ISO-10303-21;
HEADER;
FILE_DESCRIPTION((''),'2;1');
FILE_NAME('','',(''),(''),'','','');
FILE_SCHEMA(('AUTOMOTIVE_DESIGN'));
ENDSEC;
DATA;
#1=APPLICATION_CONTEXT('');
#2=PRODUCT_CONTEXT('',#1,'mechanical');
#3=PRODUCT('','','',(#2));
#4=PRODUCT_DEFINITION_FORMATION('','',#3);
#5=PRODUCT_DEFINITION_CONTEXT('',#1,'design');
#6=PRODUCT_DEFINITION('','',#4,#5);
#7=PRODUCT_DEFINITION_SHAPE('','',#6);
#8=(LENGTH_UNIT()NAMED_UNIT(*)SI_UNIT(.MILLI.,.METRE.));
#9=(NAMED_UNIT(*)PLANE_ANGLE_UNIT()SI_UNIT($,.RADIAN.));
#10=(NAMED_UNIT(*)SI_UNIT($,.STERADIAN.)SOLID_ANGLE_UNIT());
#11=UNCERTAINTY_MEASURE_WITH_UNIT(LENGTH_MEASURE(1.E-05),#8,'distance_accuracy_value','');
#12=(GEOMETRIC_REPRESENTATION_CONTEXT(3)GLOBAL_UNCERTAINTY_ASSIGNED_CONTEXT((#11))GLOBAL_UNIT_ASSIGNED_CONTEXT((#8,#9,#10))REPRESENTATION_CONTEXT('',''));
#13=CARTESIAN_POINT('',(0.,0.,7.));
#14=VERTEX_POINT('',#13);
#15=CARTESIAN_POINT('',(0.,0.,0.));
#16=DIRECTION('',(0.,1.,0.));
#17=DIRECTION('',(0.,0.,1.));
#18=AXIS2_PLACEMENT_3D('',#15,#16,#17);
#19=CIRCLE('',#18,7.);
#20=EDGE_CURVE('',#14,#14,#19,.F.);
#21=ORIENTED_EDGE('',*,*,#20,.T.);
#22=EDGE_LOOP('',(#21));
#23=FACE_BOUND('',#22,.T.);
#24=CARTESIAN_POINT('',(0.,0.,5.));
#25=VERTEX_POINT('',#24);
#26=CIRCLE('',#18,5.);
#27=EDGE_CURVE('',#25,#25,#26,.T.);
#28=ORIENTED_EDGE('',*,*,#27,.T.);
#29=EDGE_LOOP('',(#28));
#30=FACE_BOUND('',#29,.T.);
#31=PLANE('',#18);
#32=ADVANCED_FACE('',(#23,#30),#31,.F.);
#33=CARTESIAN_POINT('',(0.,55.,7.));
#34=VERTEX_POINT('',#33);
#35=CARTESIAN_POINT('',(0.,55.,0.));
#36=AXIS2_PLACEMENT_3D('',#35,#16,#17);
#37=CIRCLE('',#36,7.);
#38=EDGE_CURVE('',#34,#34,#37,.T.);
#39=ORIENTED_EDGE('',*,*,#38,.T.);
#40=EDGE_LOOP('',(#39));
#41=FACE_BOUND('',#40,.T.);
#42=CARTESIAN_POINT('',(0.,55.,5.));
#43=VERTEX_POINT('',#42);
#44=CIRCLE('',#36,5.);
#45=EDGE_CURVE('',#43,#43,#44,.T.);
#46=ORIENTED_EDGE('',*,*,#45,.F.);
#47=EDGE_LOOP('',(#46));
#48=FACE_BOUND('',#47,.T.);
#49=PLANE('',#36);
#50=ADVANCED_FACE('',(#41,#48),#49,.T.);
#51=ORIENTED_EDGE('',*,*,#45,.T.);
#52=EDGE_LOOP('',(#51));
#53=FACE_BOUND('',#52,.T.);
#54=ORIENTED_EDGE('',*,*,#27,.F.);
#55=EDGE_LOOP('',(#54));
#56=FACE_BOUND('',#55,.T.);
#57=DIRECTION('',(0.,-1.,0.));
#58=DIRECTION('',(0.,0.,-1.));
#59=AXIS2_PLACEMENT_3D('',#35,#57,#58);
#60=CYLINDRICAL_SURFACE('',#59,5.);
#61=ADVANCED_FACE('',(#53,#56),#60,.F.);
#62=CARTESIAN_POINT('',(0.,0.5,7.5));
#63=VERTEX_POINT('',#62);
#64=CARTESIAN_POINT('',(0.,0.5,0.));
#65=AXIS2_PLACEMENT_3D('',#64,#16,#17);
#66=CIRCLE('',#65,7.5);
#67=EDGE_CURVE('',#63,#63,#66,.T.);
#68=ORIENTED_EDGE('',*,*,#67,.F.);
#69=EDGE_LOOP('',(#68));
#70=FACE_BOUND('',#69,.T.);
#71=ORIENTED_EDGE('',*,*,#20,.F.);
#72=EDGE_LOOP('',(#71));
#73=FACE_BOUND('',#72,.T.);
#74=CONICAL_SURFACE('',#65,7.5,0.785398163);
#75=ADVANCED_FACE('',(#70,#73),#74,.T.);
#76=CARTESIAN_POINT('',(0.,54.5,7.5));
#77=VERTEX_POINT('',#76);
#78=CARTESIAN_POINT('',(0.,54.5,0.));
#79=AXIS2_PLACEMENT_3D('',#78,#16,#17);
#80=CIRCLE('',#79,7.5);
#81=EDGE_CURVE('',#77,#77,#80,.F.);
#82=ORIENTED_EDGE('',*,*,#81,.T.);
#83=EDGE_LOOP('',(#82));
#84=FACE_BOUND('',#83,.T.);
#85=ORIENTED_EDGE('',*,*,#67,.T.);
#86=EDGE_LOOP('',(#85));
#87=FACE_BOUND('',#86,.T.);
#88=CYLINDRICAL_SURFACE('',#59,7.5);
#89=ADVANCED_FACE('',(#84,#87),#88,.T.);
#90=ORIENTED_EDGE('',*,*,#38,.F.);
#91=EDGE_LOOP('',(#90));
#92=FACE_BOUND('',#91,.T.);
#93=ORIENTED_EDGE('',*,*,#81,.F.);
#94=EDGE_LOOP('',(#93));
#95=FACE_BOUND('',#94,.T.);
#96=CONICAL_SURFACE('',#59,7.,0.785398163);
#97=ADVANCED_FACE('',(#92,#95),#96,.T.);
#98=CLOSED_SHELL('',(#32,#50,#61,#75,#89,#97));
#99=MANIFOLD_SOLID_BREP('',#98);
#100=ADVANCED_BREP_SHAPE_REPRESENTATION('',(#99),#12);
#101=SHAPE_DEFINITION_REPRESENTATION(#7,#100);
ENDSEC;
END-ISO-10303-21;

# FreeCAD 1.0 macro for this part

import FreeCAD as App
import Part
import Sketcher

V = App.Vector
Q = App.Units.Quantity


def edges_at(feature, points):
    """Names of the edges that pass closest to the given points."""
    edges = feature.Shape.Edges
    near = lambda p: min(range(len(edges)), key=lambda i: edges[i].distToShape(Part.Vertex(*p))[0])
    return sorted({f"Edge{near(p) + 1}" for p in points})

doc = App.newDocument("Part")
body = doc.addObject("PartDesign::Body", "Body")

sketch1 = doc.addObject("Sketcher::SketchObject", "Sketch")
body.addObject(sketch1)
sketch1.AttachmentSupport = (doc.XZ_Plane, [""])
sketch1.MapMode = "FlatFace"
sketch1.addGeometry(Part.Circle(V(0, 0, 0), V(0, 0, 1), 8), False)
sketch1.addGeometry(Part.Circle(V(0, 0, 0), V(0, 0, 1), 5), False)
sketch1.addConstraint(Sketcher.Constraint("Coincident", 0, 3, -1, 1))
sketch1.addConstraint(Sketcher.Constraint("Coincident", 1, 3, -1, 1))
sketch1.addConstraint(Sketcher.Constraint("Diameter", 0, Q("15 mm")))
sketch1.addConstraint(Sketcher.Constraint("Diameter", 1, Q("10 mm")))
pad1 = doc.addObject("PartDesign::Pad", "Pad")
body.addObject(pad1)
pad1.Profile = sketch1
pad1.Length = 55
pad1.Reversed = True
doc.recompute()

chamfer = doc.addObject("PartDesign::Chamfer", "Chamfer")
body.addObject(chamfer)
chamfer.Base = (pad1, edges_at(pad1, [(0, 0, -7.5), (0, 55, -7.5)]))
chamfer.Size = 0.5

doc.recompute()
